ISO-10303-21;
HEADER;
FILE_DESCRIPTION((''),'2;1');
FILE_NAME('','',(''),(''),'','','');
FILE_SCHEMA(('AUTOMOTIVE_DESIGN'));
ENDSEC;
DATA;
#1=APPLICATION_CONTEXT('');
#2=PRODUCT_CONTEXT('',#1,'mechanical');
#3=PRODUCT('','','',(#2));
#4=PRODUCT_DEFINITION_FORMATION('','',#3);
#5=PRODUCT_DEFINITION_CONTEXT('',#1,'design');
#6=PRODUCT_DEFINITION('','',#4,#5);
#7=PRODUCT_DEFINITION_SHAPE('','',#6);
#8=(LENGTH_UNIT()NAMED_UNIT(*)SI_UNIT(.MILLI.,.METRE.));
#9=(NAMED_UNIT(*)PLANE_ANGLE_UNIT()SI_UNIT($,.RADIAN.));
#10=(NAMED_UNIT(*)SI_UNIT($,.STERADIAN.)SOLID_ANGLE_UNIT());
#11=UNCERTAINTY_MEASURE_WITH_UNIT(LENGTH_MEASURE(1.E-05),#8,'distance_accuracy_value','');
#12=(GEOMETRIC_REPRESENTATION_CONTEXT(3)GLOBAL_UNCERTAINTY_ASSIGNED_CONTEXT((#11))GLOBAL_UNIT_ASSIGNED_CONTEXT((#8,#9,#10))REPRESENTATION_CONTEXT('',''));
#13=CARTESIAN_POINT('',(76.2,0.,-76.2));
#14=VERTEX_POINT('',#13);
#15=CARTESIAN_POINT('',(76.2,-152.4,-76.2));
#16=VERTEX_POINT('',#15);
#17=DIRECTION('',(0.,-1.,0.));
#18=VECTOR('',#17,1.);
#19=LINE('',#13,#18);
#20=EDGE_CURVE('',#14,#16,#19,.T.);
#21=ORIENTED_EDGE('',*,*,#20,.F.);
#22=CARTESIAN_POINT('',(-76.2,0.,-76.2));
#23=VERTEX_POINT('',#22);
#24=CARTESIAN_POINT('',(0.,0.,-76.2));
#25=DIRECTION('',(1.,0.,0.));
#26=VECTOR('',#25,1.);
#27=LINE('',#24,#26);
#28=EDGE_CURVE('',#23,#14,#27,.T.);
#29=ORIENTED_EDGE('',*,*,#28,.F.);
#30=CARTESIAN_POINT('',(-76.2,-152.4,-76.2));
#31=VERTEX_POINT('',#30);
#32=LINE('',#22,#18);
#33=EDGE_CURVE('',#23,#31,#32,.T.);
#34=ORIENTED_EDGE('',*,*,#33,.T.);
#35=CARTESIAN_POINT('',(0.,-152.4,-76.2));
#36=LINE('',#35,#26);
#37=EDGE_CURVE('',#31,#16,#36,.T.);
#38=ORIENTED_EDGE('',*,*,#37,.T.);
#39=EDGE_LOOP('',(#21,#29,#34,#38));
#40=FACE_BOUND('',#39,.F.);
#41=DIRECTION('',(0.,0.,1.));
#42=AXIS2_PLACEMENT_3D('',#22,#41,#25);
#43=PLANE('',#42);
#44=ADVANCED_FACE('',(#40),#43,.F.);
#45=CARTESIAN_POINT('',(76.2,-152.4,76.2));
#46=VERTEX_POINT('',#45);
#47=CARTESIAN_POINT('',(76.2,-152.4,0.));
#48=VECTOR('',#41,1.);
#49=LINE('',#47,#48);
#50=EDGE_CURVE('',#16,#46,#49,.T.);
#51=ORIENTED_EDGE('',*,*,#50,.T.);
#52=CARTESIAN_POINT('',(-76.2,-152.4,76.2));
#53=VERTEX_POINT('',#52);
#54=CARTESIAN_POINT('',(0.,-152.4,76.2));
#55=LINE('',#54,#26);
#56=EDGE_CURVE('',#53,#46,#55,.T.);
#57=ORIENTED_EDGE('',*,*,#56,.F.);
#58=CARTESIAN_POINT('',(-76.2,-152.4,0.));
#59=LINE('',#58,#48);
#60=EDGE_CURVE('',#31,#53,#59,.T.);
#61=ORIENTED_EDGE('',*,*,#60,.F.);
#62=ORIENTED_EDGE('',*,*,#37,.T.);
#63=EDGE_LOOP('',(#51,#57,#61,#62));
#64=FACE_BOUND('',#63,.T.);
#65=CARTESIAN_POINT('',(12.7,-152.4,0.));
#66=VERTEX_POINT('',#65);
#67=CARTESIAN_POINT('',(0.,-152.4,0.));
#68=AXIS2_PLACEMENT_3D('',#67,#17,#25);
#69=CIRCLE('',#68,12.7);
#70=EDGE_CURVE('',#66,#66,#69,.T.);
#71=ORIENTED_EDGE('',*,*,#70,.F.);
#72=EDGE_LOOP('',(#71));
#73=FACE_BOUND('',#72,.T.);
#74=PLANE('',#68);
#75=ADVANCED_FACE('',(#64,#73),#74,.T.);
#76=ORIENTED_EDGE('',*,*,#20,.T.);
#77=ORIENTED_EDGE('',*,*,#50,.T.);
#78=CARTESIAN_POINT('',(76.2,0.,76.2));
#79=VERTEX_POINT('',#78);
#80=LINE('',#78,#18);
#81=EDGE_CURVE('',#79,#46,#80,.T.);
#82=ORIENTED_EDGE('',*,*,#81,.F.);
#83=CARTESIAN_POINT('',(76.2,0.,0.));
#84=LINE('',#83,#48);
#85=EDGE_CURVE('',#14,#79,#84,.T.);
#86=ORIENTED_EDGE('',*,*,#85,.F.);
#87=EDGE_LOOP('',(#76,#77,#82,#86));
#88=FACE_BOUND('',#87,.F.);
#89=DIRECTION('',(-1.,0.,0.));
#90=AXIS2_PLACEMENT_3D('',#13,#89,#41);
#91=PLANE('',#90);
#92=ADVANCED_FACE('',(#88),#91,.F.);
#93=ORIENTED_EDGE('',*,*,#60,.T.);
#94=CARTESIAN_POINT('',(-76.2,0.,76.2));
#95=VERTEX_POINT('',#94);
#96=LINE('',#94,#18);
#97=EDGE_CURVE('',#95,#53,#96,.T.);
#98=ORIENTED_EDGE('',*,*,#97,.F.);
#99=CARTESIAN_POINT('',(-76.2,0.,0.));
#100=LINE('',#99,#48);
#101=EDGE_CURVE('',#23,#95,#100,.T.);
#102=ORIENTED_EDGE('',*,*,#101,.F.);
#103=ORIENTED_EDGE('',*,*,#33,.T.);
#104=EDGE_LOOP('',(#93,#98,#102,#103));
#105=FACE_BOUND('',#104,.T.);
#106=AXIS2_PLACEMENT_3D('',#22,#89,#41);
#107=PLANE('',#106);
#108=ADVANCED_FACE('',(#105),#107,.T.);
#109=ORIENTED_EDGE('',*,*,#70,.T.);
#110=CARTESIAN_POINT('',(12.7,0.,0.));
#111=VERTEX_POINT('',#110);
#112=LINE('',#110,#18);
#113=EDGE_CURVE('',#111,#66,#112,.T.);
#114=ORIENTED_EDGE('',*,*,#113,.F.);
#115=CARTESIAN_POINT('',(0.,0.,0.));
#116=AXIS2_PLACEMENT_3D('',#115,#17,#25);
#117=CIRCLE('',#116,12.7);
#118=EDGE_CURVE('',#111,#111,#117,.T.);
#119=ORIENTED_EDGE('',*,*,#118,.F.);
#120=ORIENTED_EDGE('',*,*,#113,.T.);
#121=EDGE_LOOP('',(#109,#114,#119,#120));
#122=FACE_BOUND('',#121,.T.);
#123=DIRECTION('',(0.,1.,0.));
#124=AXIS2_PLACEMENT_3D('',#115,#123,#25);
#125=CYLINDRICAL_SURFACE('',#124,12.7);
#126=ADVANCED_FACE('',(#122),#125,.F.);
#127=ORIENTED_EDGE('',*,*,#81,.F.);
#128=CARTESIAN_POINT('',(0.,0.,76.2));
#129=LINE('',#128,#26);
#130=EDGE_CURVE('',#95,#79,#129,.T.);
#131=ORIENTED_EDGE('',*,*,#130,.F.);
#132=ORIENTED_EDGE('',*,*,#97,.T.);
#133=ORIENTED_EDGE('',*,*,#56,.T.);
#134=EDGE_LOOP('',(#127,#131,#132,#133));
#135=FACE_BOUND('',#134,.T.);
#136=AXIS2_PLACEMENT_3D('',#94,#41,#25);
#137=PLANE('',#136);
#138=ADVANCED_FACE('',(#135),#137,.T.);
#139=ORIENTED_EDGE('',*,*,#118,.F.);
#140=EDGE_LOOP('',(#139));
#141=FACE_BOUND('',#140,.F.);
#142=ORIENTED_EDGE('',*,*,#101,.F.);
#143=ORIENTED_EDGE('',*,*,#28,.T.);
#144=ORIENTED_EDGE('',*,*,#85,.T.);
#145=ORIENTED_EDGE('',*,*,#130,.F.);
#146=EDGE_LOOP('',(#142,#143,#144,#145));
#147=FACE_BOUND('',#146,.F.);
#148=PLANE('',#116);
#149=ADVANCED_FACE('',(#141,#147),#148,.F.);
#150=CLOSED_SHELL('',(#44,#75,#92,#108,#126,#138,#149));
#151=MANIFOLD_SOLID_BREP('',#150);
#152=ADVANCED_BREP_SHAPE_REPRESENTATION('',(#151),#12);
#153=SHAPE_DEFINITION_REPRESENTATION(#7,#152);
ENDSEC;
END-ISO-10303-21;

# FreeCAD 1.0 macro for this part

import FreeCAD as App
import Part
import Sketcher
from FreeCAD import Vector
Q = App.Units.Quantity


def add_polygon(sketch, points):
    """Adds a closed chain of lines whose ends are joined by coincident constraints."""
    first, n = sketch.GeometryCount, len(points)
    for a, b in zip(points, points[1:] + points[:1]):
        sketch.addGeometry(Part.LineSegment(App.Vector(*a, 0), App.Vector(*b, 0)), False)
    for i in range(n):
        sketch.addConstraint(Sketcher.Constraint("Coincident", first + i, 2, first + (i + 1) % n, 1))

doc = App.newDocument("Part")
params = doc.addObject("Spreadsheet::Sheet", "Params")
for row, (alias, value) in enumerate([
    ("sketch1_diameter", "1 in"),
    ("sketch1_width", "6 in"),
    ("pad1_length", "6 in"),
    ("sketch2_diameter", "1 in"),
    ("sketch2_width", "6 in"),
    ("pocket1_length", "6 in"),
], start=1):
    params.set(f"A{row}", alias)
    params.set(f"B{row}", "=" + value)
    params.setAlias(f"B{row}", alias)

body = doc.addObject("PartDesign::Body", "Body")

# Sketch on XZ plane
sketch1 = body.newObject("Sketcher::SketchObject", "Sketch")
sketch1.AttachmentSupport = (doc.getObject("XZ_Plane"), [""])
sketch1.MapMode = "FlatFace"
add_polygon(sketch1, [(-76, 76), (-76, -76), (76, -76), (76, 76)])  # lines 0-3
sketch1.addGeometry(Part.Circle(Vector(0, 0, 0), Vector(0, 0, 1), 13), False)  # 4
sketch1.addConstraint([
    Sketcher.Constraint("Vertical", 0),
    Sketcher.Constraint("Horizontal", 1),
    Sketcher.Constraint("Vertical", 2),
    Sketcher.Constraint("Horizontal", 3),
    Sketcher.Constraint("Coincident", 4, 3, -1, 1),
    Sketcher.Constraint("Symmetric", 0, 2, 2, 2, -1, 1),
    Sketcher.Constraint("Equal", 3, 0),
    Sketcher.Constraint("Diameter", 4, Q("1 in")),
    Sketcher.Constraint("DistanceX", 1, 1, 1, 2, Q("6 in")),
])
sketch1.setExpression("Constraints[11]", "Params.sketch1_diameter")
sketch1.setExpression("Constraints[12]", "Params.sketch1_width")
pad1 = body.newObject("PartDesign::Pad", "Pad")
pad1.Profile = sketch1
pad1.setExpression("Length", "Params.pad1_length")

# Sketch on XZ plane
sketch2 = body.newObject("Sketcher::SketchObject", "Sketch001")
sketch2.AttachmentSupport = (doc.getObject("XZ_Plane"), [""])
sketch2.MapMode = "FlatFace"
add_polygon(sketch2, [(-76, 76), (-76, -76), (76, -76), (76, 76)])  # lines 0-3
sketch2.addGeometry(Part.Circle(Vector(0, 0, 0), Vector(0, 0, 1), 13), False)  # 4
sketch2.addConstraint([
    Sketcher.Constraint("Vertical", 0),
    Sketcher.Constraint("Horizontal", 1),
    Sketcher.Constraint("Vertical", 2),
    Sketcher.Constraint("Horizontal", 3),
    Sketcher.Constraint("Coincident", 4, 3, -1, 1),
    Sketcher.Constraint("Symmetric", 0, 2, 2, 2, -1, 1),
    Sketcher.Constraint("Equal", 3, 0),
    Sketcher.Constraint("Diameter", 4, Q("1 in")),
    Sketcher.Constraint("DistanceX", 1, 1, 1, 2, Q("6 in")),
])
sketch2.setExpression("Constraints[11]", "Params.sketch2_diameter")
sketch2.setExpression("Constraints[12]", "Params.sketch2_width")
pocket1 = body.newObject("PartDesign::Pocket", "Pocket")
pocket1.Profile = sketch2
pocket1.setExpression("Length", "Params.pocket1_length")

doc.recompute()
